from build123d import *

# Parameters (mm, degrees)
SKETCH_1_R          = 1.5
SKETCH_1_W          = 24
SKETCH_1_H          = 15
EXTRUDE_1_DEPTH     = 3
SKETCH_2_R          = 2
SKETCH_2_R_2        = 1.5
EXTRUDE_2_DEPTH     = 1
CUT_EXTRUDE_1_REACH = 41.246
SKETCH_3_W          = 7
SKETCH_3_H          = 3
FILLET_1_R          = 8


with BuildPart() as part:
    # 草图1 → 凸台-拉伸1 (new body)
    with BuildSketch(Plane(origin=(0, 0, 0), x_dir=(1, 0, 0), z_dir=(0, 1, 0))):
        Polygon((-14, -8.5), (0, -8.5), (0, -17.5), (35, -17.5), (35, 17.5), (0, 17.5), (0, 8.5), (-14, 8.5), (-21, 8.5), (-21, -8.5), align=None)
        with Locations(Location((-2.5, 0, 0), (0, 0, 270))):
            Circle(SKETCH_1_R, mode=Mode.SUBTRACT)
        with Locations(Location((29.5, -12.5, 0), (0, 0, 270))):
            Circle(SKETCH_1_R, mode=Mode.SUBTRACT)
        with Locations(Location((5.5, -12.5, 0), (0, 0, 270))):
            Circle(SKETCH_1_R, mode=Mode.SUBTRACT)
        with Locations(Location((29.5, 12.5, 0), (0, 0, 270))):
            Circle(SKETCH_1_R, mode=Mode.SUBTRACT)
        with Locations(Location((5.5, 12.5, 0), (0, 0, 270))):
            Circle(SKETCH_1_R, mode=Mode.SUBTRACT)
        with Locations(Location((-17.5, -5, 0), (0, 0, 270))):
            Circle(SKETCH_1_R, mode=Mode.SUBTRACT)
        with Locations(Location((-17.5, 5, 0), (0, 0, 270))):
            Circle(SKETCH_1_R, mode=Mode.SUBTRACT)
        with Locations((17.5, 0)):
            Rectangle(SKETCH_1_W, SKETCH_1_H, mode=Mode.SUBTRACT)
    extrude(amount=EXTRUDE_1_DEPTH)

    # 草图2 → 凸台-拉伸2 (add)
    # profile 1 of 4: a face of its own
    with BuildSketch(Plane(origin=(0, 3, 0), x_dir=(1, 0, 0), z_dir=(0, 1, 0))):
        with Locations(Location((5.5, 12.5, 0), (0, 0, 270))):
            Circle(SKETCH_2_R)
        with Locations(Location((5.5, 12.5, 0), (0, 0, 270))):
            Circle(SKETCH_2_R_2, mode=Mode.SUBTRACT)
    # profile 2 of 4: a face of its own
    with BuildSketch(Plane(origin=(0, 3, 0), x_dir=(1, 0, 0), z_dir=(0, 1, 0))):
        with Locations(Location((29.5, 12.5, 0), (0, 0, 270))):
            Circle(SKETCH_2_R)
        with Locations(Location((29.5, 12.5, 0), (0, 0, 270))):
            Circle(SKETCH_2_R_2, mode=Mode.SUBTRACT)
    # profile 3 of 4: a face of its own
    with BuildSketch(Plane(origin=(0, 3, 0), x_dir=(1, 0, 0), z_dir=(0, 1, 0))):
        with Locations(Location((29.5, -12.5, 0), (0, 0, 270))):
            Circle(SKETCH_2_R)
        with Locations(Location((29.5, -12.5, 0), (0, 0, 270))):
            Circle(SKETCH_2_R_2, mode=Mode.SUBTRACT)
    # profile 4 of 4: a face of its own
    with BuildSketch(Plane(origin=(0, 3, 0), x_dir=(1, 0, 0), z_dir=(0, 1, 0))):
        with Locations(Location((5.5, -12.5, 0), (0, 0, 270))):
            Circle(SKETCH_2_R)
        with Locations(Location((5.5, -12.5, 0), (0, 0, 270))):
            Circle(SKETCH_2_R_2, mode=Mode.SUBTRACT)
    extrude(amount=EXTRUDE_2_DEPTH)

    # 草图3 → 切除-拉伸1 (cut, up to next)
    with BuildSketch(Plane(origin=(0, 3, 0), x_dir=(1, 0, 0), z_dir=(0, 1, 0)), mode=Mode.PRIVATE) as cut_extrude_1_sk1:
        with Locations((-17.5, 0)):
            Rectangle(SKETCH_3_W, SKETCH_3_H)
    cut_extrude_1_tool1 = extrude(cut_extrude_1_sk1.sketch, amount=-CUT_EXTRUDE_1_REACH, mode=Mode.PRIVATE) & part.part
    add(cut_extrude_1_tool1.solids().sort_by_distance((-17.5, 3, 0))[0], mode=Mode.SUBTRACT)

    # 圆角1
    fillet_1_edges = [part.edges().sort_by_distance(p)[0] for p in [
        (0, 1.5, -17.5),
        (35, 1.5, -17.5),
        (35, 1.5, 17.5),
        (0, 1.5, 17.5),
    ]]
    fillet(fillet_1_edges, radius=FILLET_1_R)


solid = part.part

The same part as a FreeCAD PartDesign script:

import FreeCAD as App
import Part
import Sketcher

V = App.Vector


def edges_at(feature, points):
    """Names of the edges that pass closest to the given points."""
    edges = feature.Shape.Edges
    near = lambda p: min(range(len(edges)), key=lambda i: edges[i].distToShape(Part.Vertex(*p))[0])
    return sorted({f"Edge{near(p) + 1}" for p in points})


def add_polygon(sketch, points):
    """Adds a closed chain of lines whose ends are joined by coincident constraints."""
    first, n = sketch.GeometryCount, len(points)
    for a, b in zip(points, points[1:] + points[:1]):
        sketch.addGeometry(Part.LineSegment(App.Vector(*a, 0), App.Vector(*b, 0)), False)
    for i in range(n):
        sketch.addConstraint(Sketcher.Constraint("Coincident", first + i, 2, first + (i + 1) % n, 1))

doc = App.newDocument("Part")
body = doc.addObject("PartDesign::Body", "Body")

sketch1 = doc.addObject("Sketcher::SketchObject", "Sketch")
body.addObject(sketch1)
sketch1.AttachmentSupport = (doc.XZ_Plane, [""])
sketch1.MapMode = "FlatFace"
add_polygon(sketch1, [(0, 8.5), (0, 17.5), (35, 17.5), (35, -17.5), (0, -17.5), (0, -8.5), (-21, -8.5), (-21, 8.5)])
sketch1.addGeometry(Part.Circle(V(5.5, 12.5, 0), V(0, 0, 1), 1.5), False)
sketch1.addGeometry(Part.Circle(V(-17.5, 5, 0), V(0, 0, 1), 1.5), False)
sketch1.addGeometry(Part.Circle(V(29.5, 12.5, 0), V(0, 0, 1), 1.5), False)
sketch1.addGeometry(Part.Circle(V(-17.5, -5, 0), V(0, 0, 1), 1.5), False)
sketch1.addGeometry(Part.Circle(V(-2.5, 0, 0), V(0, 0, 1), 1.5), False)
sketch1.addGeometry(Part.Circle(V(5.5, -12.5, 0), V(0, 0, 1), 1.5), False)
add_polygon(sketch1, [(29.5, 7.5), (5.5, 7.5), (5.5, -7.5), (29.5, -7.5)])
sketch1.addGeometry(Part.Circle(V(29.5, -12.5, 0), V(0, 0, 1), 1.5), False)
sketch1.addConstraint([
    Sketcher.Constraint("Vertical", 0),
    Sketcher.Constraint("Horizontal", 1),
    Sketcher.Constraint("Vertical", 2),
    Sketcher.Constraint("Horizontal", 3),
    Sketcher.Constraint("Vertical", 4),
    Sketcher.Constraint("Horizontal", 5),
    Sketcher.Constraint("Vertical", 6),
    Sketcher.Constraint("Horizontal", 7),
    Sketcher.Constraint("Horizontal", 14),
    Sketcher.Constraint("Vertical", 15),
    Sketcher.Constraint("Horizontal", 16),
    Sketcher.Constraint("Vertical", 17),
    Sketcher.Constraint("Equal", 8, 9),
    Sketcher.Constraint("Equal", 9, 10),
    Sketcher.Constraint("Equal", 10, 11),
    Sketcher.Constraint("Equal", 11, 12),
    Sketcher.Constraint("Equal", 12, 13),
    Sketcher.Constraint("Equal", 13, 18),
    Sketcher.Constraint("Symmetric", 0, 2, 3, 2, -1, 1),
    Sketcher.Constraint("Symmetric", 9, 3, 11, 3, -1),
    Sketcher.Constraint("Symmetric", 8, 3, 13, 3, -1),
    Sketcher.Constraint("Symmetric", 10, 3, 18, 3, -1),
    Sketcher.Constraint("Symmetric", 4, 2, 7, 2, -1),
    Sketcher.Constraint("PointOnObject", 12, 3, -1),
    Sketcher.Constraint("Horizontal", 8, 3, 10, 3),
    Sketcher.Constraint("Vertical", 13, 3, 14, 2),
    Sketcher.Constraint("Vertical", 18, 3, 16, 2),
    Sketcher.Constraint("Equal", 3, 2),
    Sketcher.Constraint("Diameter", 8, 3.0),
    Sketcher.Constraint("DistanceX", 1, 1, 1, 2, 35.0),
    Sketcher.Constraint("DistanceX", 5, 2, 5, 1, 21.0),
    Sketcher.Constraint("DistanceX", 14, 2, 14, 1, 24.0),
    Sketcher.Constraint("DistanceY", 0, 1, 0, 2, 9.0),
    Sketcher.Constraint("DistanceY", 15, 2, 15, 1, 15.0),
    Sketcher.Constraint("DistanceY", -1, 1, 9, 3, 5.0),
    Sketcher.Constraint("DistanceX", 9, 3, 8, 3, 23.0),
    Sketcher.Constraint("DistanceX", 12, 3, 8, 3, 8.0),
    Sketcher.Constraint("DistanceY", 13, 3, 8, 3, 25.0),
    Sketcher.Constraint("DistanceY", 14, 2, 8, 3, 5.0),
    Sketcher.Constraint("DistanceX", -1, 1, 8, 3, 5.5),
])
pad1 = doc.addObject("PartDesign::Pad", "Pad")
body.addObject(pad1)
pad1.Profile = sketch1
pad1.Length = 3
pad1.Reversed = True

sketch2 = doc.addObject("Sketcher::SketchObject", "Sketch001")
body.addObject(sketch2)
sketch2.AttachmentSupport = (doc.XZ_Plane, [""])
sketch2.MapMode = "FlatFace"
sketch2.AttachmentOffset = App.Placement(V(0, 0, -3), App.Rotation())
sketch2.addGeometry([
    Part.Circle(V(5.5, -12.5, 0), V(0, 0, 1), 2),
    Part.Circle(V(5.5, -12.5, 0), V(0, 0, 1), 1.5),
    Part.Circle(V(29.5, -12.5, 0), V(0, 0, 1), 2),
    Part.Circle(V(29.5, -12.5, 0), V(0, 0, 1), 1.5),
    Part.Circle(V(29.5, 12.5, 0), V(0, 0, 1), 2),
    Part.Circle(V(29.5, 12.5, 0), V(0, 0, 1), 1.5),
    Part.Circle(V(5.5, 12.5, 0), V(0, 0, 1), 2),
    Part.Circle(V(5.5, 12.5, 0), V(0, 0, 1), 1.5),
], False)
sketch2.addConstraint([
    Sketcher.Constraint("Coincident", 1, 3, 0, 3),
    Sketcher.Constraint("Coincident", 3, 3, 2, 3),
    Sketcher.Constraint("Coincident", 5, 3, 4, 3),
    Sketcher.Constraint("Coincident", 7, 3, 6, 3),
    Sketcher.Constraint("Equal", 0, 2),
    Sketcher.Constraint("Equal", 1, 3),
    Sketcher.Constraint("Equal", 2, 4),
    Sketcher.Constraint("Equal", 3, 5),
    Sketcher.Constraint("Equal", 4, 6),
    Sketcher.Constraint("Equal", 5, 7),
    Sketcher.Constraint("Symmetric", 2, 3, 4, 3, -1),
    Sketcher.Constraint("Symmetric", 0, 3, 6, 3, -1),
    Sketcher.Constraint("Horizontal", 1, 3, 2, 3),
    Sketcher.Constraint("Diameter", 0, 4.0),
    Sketcher.Constraint("Diameter", 1, 3.0),
    Sketcher.Constraint("DistanceX", 0, 3, 2, 3, 24.0),
    Sketcher.Constraint("DistanceY", 2, 3, 4, 3, 25.0),
    Sketcher.Constraint("DistanceX", -1, 1, 0, 3, 5.5),
])
pad2 = doc.addObject("PartDesign::Pad", "Pad001")
body.addObject(pad2)
pad2.Profile = sketch2
pad2.Length = 1
pad2.Reversed = True

sketch3 = doc.addObject("Sketcher::SketchObject", "Sketch002")
body.addObject(sketch3)
sketch3.AttachmentSupport = (doc.XZ_Plane, [""])
sketch3.MapMode = "FlatFace"
sketch3.AttachmentOffset = App.Placement(V(0, 0, -3), App.Rotation())
add_polygon(sketch3, [(-21, -1.5), (-21, 1.5), (-14, 1.5), (-14, -1.5)])
sketch3.addConstraint([
    Sketcher.Constraint("Vertical", 0),
    Sketcher.Constraint("Horizontal", 1),
    Sketcher.Constraint("Vertical", 2),
    Sketcher.Constraint("Horizontal", 3),
    Sketcher.Constraint("DistanceX", 1, 1, 1, 2, 7.0),
    Sketcher.Constraint("DistanceY", 0, 1, 0, 2, 3.0),
    Sketcher.Constraint("DistanceX", 0, 2, -1, 1, 21.0),
    Sketcher.Constraint("DistanceY", -1, 1, 0, 2, 1.5),
])
pocket1 = doc.addObject("PartDesign::Pocket", "Pocket")
body.addObject(pocket1)
pocket1.Profile = sketch3
pocket1.Type = "UpToFirst"
pocket1.Reversed = True
doc.recompute()

fillet = doc.addObject("PartDesign::Fillet", "Fillet")
body.addObject(fillet)
fillet.Base = (pocket1, edges_at(pocket1, [
    (0, 1.5, -17.5),
    (35, 1.5, -17.5),
    (35, 1.5, 17.5),
    (0, 1.5, 17.5),
]))
fillet.Radius = 8

doc.recompute()
